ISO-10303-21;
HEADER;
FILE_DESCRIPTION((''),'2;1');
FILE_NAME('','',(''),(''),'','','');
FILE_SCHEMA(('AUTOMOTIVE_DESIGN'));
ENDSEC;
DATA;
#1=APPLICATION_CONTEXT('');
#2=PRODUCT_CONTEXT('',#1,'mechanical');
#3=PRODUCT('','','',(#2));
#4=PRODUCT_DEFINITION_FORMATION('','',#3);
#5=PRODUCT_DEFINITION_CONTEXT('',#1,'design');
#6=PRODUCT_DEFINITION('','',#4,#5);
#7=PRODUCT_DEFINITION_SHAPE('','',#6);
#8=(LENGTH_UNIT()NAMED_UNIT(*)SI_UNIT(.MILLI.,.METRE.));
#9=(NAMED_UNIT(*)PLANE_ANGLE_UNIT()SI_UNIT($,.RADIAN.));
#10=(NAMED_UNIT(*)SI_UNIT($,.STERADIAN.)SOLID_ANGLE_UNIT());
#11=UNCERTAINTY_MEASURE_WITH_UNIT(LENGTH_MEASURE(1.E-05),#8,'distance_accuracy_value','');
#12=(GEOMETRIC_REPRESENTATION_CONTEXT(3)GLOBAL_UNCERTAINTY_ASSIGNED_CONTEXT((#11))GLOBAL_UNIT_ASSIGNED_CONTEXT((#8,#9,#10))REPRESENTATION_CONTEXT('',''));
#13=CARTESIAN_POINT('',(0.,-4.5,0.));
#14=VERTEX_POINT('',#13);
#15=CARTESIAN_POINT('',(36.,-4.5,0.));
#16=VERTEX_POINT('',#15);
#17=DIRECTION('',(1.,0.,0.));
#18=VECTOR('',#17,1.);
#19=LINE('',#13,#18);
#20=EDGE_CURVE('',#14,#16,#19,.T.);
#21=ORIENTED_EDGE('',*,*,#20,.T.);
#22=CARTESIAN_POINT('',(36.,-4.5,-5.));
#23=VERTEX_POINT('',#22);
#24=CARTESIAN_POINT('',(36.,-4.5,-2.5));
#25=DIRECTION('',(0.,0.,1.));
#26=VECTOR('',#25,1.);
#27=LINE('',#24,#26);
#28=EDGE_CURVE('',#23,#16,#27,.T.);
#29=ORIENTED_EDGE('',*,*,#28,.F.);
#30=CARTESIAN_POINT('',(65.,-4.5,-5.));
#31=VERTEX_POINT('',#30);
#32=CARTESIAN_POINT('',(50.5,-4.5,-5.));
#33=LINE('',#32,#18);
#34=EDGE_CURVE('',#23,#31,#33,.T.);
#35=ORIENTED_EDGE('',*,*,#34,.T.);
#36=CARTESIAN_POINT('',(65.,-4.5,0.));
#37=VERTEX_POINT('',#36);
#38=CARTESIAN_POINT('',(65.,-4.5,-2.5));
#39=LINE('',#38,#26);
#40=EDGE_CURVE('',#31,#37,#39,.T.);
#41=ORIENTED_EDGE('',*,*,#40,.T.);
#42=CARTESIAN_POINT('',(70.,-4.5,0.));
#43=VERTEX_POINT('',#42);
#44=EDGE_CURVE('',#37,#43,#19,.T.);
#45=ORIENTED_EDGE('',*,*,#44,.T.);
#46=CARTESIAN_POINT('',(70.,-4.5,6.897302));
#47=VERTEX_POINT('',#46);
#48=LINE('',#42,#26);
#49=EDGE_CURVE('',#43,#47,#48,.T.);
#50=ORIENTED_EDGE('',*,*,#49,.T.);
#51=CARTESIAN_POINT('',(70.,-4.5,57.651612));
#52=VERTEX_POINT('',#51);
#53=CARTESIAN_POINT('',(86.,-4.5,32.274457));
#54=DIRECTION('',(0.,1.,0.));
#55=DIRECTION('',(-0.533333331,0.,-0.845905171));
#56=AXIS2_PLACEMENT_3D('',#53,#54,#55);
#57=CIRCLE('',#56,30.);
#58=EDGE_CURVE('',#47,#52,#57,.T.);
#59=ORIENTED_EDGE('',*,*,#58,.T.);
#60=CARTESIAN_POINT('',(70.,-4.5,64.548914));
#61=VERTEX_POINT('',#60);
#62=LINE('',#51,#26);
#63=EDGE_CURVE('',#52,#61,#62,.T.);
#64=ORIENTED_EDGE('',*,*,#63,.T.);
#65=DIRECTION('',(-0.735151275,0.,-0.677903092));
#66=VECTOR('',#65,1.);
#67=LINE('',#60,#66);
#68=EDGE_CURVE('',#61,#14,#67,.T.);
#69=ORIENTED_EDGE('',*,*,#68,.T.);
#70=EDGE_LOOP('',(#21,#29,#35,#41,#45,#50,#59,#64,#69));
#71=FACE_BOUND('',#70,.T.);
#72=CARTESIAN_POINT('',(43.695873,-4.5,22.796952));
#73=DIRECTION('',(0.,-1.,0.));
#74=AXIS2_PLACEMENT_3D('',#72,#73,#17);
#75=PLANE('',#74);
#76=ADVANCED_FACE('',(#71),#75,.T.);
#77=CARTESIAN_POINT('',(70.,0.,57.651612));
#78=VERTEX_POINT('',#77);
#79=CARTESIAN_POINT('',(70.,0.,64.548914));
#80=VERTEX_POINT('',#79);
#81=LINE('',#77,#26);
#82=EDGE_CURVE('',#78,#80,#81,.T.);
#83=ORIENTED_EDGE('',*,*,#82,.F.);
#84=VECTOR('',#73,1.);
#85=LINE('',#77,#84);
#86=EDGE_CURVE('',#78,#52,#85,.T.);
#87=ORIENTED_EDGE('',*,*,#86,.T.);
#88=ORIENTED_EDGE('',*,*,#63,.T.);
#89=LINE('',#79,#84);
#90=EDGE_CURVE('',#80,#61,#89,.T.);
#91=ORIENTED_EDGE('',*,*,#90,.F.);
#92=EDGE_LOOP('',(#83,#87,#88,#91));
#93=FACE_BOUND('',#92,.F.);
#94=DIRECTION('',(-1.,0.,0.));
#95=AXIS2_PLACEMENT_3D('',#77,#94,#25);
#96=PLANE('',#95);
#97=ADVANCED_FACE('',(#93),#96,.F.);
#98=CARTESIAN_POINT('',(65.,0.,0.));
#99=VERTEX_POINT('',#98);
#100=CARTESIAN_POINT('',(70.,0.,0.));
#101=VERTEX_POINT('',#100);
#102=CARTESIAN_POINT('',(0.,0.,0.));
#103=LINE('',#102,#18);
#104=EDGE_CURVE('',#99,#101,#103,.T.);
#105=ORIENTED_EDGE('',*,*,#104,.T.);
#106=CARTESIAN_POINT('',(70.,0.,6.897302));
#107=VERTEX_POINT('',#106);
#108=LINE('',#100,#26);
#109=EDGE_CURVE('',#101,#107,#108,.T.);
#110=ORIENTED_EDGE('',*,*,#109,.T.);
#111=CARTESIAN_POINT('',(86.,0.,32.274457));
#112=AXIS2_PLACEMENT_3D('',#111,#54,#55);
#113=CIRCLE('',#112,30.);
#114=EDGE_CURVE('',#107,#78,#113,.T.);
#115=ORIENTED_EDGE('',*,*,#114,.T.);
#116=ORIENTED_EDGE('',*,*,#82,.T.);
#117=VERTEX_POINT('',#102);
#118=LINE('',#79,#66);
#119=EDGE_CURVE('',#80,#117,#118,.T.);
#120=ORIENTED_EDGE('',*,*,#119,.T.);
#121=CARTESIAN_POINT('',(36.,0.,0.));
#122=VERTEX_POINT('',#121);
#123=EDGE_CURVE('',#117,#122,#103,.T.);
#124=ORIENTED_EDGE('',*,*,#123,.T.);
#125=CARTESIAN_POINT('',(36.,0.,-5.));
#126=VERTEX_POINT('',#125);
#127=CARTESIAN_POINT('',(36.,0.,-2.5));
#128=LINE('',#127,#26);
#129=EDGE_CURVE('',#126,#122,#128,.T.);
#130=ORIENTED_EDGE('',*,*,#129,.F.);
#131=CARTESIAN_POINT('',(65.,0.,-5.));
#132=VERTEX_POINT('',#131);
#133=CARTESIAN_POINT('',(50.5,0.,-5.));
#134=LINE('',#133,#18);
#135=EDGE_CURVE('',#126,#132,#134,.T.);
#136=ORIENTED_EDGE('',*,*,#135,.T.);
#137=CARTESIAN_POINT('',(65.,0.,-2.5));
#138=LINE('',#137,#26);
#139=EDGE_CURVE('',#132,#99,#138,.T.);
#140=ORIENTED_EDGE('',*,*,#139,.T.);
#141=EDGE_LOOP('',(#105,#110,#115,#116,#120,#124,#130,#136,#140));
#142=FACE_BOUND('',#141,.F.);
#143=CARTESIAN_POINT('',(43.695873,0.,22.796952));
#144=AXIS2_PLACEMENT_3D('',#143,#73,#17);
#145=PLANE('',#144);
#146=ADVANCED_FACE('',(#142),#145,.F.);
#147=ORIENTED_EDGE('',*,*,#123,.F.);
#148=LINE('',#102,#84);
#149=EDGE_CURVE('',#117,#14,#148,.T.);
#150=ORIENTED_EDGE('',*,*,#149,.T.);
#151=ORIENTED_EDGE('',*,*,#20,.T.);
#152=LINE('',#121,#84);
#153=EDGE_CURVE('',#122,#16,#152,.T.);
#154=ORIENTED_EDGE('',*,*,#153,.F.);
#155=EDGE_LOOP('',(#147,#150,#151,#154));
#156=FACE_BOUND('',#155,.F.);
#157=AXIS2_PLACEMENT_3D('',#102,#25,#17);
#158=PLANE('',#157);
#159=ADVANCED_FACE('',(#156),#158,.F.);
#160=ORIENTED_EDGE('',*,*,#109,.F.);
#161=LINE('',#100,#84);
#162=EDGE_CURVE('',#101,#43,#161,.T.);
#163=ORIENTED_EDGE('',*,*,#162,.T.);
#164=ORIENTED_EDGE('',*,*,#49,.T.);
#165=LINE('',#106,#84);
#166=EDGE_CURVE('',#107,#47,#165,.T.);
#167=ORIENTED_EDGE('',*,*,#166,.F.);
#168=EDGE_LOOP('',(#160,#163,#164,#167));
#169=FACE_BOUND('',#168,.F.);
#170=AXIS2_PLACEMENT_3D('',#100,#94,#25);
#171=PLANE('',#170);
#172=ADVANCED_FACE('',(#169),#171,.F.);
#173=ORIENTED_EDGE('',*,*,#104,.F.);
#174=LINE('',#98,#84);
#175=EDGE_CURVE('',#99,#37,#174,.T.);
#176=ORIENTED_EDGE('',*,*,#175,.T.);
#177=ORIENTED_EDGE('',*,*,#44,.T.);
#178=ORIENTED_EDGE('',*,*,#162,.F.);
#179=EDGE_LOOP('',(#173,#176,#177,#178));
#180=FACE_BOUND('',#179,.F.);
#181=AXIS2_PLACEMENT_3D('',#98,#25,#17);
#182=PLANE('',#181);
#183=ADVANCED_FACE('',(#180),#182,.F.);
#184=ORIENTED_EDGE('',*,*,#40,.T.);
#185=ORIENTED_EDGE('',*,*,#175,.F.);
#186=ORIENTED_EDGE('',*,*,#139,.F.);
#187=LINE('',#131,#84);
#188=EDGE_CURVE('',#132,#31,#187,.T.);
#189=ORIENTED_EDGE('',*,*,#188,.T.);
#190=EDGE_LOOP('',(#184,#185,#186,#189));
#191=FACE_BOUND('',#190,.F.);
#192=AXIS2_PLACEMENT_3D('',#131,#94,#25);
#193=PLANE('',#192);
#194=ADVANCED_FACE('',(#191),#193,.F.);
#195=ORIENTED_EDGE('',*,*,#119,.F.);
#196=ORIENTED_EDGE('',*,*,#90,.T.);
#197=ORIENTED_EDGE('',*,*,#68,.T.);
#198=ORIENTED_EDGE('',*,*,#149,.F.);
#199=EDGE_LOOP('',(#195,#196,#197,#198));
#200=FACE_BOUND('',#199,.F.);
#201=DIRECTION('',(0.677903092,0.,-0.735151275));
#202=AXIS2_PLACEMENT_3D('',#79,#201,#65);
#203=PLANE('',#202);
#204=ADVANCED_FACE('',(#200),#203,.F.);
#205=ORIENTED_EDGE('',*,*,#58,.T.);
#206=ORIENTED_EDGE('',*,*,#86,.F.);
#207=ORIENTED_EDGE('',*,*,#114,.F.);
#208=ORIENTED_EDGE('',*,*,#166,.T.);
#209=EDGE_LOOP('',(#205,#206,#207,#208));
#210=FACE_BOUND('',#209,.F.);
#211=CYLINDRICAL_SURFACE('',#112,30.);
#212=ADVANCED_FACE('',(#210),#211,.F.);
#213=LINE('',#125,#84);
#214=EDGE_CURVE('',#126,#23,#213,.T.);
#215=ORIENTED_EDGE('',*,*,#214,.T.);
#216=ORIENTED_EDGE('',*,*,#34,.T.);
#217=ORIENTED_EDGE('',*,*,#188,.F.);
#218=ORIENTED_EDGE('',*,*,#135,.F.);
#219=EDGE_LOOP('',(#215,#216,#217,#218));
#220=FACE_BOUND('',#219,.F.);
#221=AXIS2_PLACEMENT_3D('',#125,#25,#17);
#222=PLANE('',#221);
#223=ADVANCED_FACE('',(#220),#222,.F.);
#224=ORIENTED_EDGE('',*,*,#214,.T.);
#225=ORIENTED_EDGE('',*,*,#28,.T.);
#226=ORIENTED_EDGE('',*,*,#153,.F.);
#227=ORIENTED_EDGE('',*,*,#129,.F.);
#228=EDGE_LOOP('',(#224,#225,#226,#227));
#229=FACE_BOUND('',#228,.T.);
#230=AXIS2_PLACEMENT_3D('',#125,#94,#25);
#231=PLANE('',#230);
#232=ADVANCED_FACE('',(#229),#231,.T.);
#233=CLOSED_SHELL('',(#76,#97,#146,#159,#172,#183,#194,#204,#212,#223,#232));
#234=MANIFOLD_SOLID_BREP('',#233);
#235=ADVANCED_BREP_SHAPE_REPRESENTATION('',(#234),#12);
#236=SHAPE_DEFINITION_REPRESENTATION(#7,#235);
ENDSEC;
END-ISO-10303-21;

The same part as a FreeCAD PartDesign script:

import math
import FreeCAD as App
import Part
import Sketcher
from FreeCAD import Vector
Q = App.Units.Quantity

doc = App.newDocument("Part")
body = doc.addObject("PartDesign::Body", "Body")

# Sketch on XZ plane
sketch1 = body.newObject("Sketcher::SketchObject", "Sketch")
sketch1.AttachmentSupport = (doc.getObject("XZ_Plane"), [""])
sketch1.MapMode = "FlatFace"
sketch1.addGeometry([
    Part.LineSegment(Vector(70, 65, 0), Vector(0, 0, 0)),  # 0
    Part.LineSegment(Vector(0, 0, 0), Vector(36, 0, 0)),  # 1
    Part.LineSegment(Vector(36, 0, 0), Vector(36, -5, 0)),  # 2
    Part.LineSegment(Vector(36, -5, 0), Vector(65, -5, 0)),  # 3
    Part.LineSegment(Vector(65, -5, 0), Vector(65, 0, 0)),  # 4
    Part.LineSegment(Vector(65, 0, 0), Vector(70, 0, 0)),  # 5
    Part.LineSegment(Vector(70, 0, 0), Vector(70, 7, 0)),  # 6
    Part.ArcOfCircle(Part.Circle(Vector(86, 32, 0), Vector(0, 0, 1), 30), math.radians(122), math.radians(238)),  # 7
    Part.LineSegment(Vector(70, 58, 0), Vector(70, 65, 0)),  # 8
], False)
sketch1.addConstraint([
    Sketcher.Constraint("Coincident", 0, 2, 1, 1),
    Sketcher.Constraint("Coincident", 1, 2, 2, 1),
    Sketcher.Constraint("Coincident", 2, 2, 3, 1),
    Sketcher.Constraint("Coincident", 3, 2, 4, 1),
    Sketcher.Constraint("Coincident", 4, 2, 5, 1),
    Sketcher.Constraint("Coincident", 5, 2, 6, 1),
    Sketcher.Constraint("Coincident", 6, 2, 7, 2),
    Sketcher.Constraint("Coincident", 7, 1, 8, 1),
    Sketcher.Constraint("Coincident", 8, 2, 0, 1),
    Sketcher.Constraint("Horizontal", 1),
    Sketcher.Constraint("Vertical", 2),
    Sketcher.Constraint("Horizontal", 3),
    Sketcher.Constraint("Vertical", 4),
    Sketcher.Constraint("Horizontal", 5),
    Sketcher.Constraint("Vertical", 6),
    Sketcher.Constraint("Vertical", 8),
    Sketcher.Constraint("Coincident", 0, 2, -1, 1),
    Sketcher.Constraint("PointOnObject", 4, 2, -1),
    Sketcher.Constraint("Vertical", 6, 2, 7, 1),
    Sketcher.Constraint("Equal", 5, 2),
    Sketcher.Constraint("Equal", 6, 8),
    Sketcher.Constraint("Radius", 7, Q("30 mm")),
    Sketcher.Constraint("DistanceX", 1, 1, 1, 2, Q("36 mm")),
    Sketcher.Constraint("DistanceX", 3, 1, 3, 2, Q("29 mm")),
    Sketcher.Constraint("DistanceX", 5, 1, 5, 2, Q("5 mm")),
    Sketcher.Constraint("DistanceX", -1, 1, 7, 3, Q("86 mm")),
    Sketcher.Constraint("Angle", 0, Q("-137.32 deg")),
])
pad1 = body.newObject("PartDesign::Pad", "Pad")
pad1.Profile = sketch1
pad1.Length = 4.5

doc.recompute()
